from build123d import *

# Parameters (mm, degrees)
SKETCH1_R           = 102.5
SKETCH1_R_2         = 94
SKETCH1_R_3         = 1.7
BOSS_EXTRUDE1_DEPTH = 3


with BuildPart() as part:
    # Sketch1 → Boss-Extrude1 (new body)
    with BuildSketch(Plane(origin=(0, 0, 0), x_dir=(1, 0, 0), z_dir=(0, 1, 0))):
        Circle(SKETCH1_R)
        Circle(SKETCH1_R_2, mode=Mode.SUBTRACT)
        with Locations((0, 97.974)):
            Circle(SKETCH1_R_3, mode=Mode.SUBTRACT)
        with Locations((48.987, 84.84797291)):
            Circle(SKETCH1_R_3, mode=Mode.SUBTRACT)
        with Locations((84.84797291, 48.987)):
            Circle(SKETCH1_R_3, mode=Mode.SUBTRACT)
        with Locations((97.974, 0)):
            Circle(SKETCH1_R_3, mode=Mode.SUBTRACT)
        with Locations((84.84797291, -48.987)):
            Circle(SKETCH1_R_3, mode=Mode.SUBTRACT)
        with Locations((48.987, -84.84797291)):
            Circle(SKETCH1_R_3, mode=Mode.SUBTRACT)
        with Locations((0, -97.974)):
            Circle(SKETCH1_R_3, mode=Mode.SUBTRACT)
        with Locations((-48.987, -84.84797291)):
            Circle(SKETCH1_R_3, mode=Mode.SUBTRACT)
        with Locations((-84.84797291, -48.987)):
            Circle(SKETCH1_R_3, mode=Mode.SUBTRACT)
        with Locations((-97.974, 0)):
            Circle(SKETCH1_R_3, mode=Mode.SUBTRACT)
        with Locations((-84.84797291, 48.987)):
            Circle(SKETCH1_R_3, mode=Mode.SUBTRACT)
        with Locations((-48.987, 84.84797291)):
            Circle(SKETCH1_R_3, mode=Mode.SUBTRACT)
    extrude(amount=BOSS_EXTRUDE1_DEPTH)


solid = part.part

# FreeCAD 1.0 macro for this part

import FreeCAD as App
import Part
import Sketcher
from FreeCAD import Vector
Q = App.Units.Quantity

doc = App.newDocument("Part")
body = doc.addObject("PartDesign::Body", "Body")

sketch1 = body.newObject("Sketcher::SketchObject", "Sketch")
sketch1.AttachmentSupport = (doc.getObject("XZ_Plane"), [""])
sketch1.MapMode = "FlatFace"
sketch1.addGeometry(Part.Circle(Vector(0, 0, 0), Vector(0, 0, 1), 102.5), False)
sketch1.addGeometry(Part.Circle(Vector(-49, 84.8, 0), Vector(0, 0, 1), 1.7), False)
sketch1.addGeometry(Part.Circle(Vector(-84.8, 49, 0), Vector(0, 0, 1), 1.7), False)
sketch1.addGeometry(Part.Circle(Vector(0, 98, 0), Vector(0, 0, 1), 1.7), False)
sketch1.addGeometry(Part.Circle(Vector(49, 84.8, 0), Vector(0, 0, 1), 1.7), False)
sketch1.addGeometry(Part.Circle(Vector(84.8, 49, 0), Vector(0, 0, 1), 1.7), False)
sketch1.addGeometry(Part.Circle(Vector(-98, 0, 0), Vector(0, 0, 1), 1.7), False)
sketch1.addGeometry(Part.Circle(Vector(-84.8, -49, 0), Vector(0, 0, 1), 1.7), False)
sketch1.addGeometry(Part.Circle(Vector(-49, -84.8, 0), Vector(0, 0, 1), 1.7), False)
sketch1.addGeometry(Part.Circle(Vector(0, 0, 0), Vector(0, 0, 1), 94), False)
sketch1.addGeometry(Part.Circle(Vector(98, 0, 0), Vector(0, 0, 1), 1.7), False)
sketch1.addGeometry(Part.Circle(Vector(84.8, -49, 0), Vector(0, 0, 1), 1.7), False)
sketch1.addGeometry(Part.Circle(Vector(0, -98, 0), Vector(0, 0, 1), 1.7), False)
sketch1.addGeometry(Part.Circle(Vector(49, -84.8, 0), Vector(0, 0, 1), 1.7), False)
sketch1.addConstraint(Sketcher.Constraint("Coincident", 0, 3, -1, 1))
sketch1.addConstraint(Sketcher.Constraint("Coincident", 9, 3, -1, 1))
sketch1.addConstraint(Sketcher.Constraint("Equal", 1, 2))
sketch1.addConstraint(Sketcher.Constraint("Equal", 2, 3))
sketch1.addConstraint(Sketcher.Constraint("Equal", 3, 4))
sketch1.addConstraint(Sketcher.Constraint("Equal", 4, 5))
sketch1.addConstraint(Sketcher.Constraint("Equal", 5, 6))
sketch1.addConstraint(Sketcher.Constraint("Equal", 6, 7))
sketch1.addConstraint(Sketcher.Constraint("Equal", 7, 8))
sketch1.addConstraint(Sketcher.Constraint("Equal", 8, 10))
sketch1.addConstraint(Sketcher.Constraint("Equal", 10, 11))
sketch1.addConstraint(Sketcher.Constraint("Equal", 11, 12))
sketch1.addConstraint(Sketcher.Constraint("Equal", 12, 13))
sketch1.addConstraint(Sketcher.Constraint("Symmetric", 5, 3, 7, 3, -1, 1))
sketch1.addConstraint(Sketcher.Constraint("Symmetric", 4, 3, 8, 3, -1, 1))
sketch1.addConstraint(Sketcher.Constraint("Symmetric", 6, 3, 10, 3, -1, 1))
sketch1.addConstraint(Sketcher.Constraint("Symmetric", 2, 3, 11, 3, -1, 1))
sketch1.addConstraint(Sketcher.Constraint("Symmetric", 3, 3, 12, 3, -1, 1))
sketch1.addConstraint(Sketcher.Constraint("Symmetric", 1, 3, 13, 3, -1, 1))
sketch1.addConstraint(Sketcher.Constraint("Symmetric", 1, 3, 4, 3, -2))
sketch1.addConstraint(Sketcher.Constraint("Symmetric", 2, 3, 5, 3, -2))
sketch1.addConstraint(Sketcher.Constraint("PointOnObject", 3, 3, -2))
sketch1.addConstraint(Sketcher.Constraint("PointOnObject", 6, 3, -1))
sketch1.addConstraint(Sketcher.Constraint("Diameter", 0, Q("205 mm")))
sketch1.addConstraint(Sketcher.Constraint("Diameter", 9, Q("188 mm")))
sketch1.addConstraint(Sketcher.Constraint("Diameter", 1, Q("3.4 mm")))
sketch1.addConstraint(Sketcher.Constraint("DistanceX", 1, 3, -1, 1, Q("48.987 mm")))
sketch1.addConstraint(Sketcher.Constraint("DistanceY", -1, 1, 2, 3, Q("48.987 mm")))
sketch1.addConstraint(Sketcher.Constraint("DistanceY", -1, 1, 3, 3, Q("97.974 mm")))
sketch1.addConstraint(Sketcher.Constraint("DistanceX", 6, 3, -1, 1, Q("97.974 mm")))
sketch1.addConstraint(Sketcher.Constraint("DistanceY", -1, 1, 1, 3, Q("84.847973 mm")))
sketch1.addConstraint(Sketcher.Constraint("DistanceX", 2, 3, -1, 1, Q("84.847973 mm")))
pad1 = body.newObject("PartDesign::Pad", "Pad")
pad1.Profile = sketch1
pad1.Length = 3
pad1.Reversed = True

doc.recompute()
